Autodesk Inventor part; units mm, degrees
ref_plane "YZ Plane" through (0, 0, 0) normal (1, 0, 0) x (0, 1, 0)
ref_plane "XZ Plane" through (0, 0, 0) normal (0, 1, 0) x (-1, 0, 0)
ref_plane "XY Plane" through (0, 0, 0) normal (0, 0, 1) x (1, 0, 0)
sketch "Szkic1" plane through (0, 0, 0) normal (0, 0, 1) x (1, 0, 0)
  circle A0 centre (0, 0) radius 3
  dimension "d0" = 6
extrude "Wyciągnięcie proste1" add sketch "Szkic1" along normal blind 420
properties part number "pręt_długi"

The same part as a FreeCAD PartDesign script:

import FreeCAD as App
import Part
import Sketcher
from FreeCAD import Vector
Q = App.Units.Quantity

doc = App.newDocument("Part")
params = doc.addObject("Spreadsheet::Sheet", "Params")
for row, (alias, value) in enumerate([
    ("sketch1_diameter", "6 mm"),
    ("pad1_length", "420 mm"),
], start=1):
    params.set(f"A{row}", alias)
    params.set(f"B{row}", "=" + value)
    params.setAlias(f"B{row}", alias)

body = doc.addObject("PartDesign::Body", "Body")

# Sketch on XY plane
sketch1 = body.newObject("Sketcher::SketchObject", "Sketch")
sketch1.AttachmentSupport = (doc.getObject("XY_Plane"), [""])
sketch1.MapMode = "FlatFace"
sketch1.addGeometry(Part.Circle(Vector(0, 0, 0), Vector(0, 0, 1), 3), False)
sketch1.addConstraint([
    Sketcher.Constraint("Coincident", 0, 3, -1, 1),
    Sketcher.Constraint("Diameter", 0, Q("6 mm")),
])
sketch1.setExpression("Constraints[1]", "Params.sketch1_diameter")
pad1 = body.newObject("PartDesign::Pad", "Pad")
pad1.Profile = sketch1
pad1.setExpression("Length", "Params.pad1_length")

doc.recompute()
